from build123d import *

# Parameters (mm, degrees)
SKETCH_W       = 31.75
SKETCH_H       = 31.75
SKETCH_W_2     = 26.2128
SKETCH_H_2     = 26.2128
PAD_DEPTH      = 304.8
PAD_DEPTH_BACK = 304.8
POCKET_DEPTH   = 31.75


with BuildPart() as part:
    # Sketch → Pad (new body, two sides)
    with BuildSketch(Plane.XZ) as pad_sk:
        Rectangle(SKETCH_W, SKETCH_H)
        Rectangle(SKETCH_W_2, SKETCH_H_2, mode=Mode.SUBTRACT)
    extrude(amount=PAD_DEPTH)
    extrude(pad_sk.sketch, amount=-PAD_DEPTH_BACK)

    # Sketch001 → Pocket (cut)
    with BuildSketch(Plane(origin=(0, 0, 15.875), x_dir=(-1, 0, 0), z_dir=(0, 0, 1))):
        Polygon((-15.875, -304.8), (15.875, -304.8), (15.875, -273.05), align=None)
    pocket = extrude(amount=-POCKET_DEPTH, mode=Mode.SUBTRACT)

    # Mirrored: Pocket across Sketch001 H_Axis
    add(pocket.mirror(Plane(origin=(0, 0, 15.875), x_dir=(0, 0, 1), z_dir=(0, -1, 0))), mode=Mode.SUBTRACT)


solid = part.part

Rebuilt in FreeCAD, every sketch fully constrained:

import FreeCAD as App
import Part
import Sketcher

V = App.Vector
Q = App.Units.Quantity


def add_polygon(sketch, points):
    """Adds a closed chain of lines whose ends are joined by coincident constraints."""
    first, n = sketch.GeometryCount, len(points)
    for a, b in zip(points, points[1:] + points[:1]):
        sketch.addGeometry(Part.LineSegment(App.Vector(*a, 0), App.Vector(*b, 0)), False)
    for i in range(n):
        sketch.addConstraint(Sketcher.Constraint("Coincident", first + i, 2, first + (i + 1) % n, 1))

doc = App.newDocument("Part")
params = doc.addObject("Spreadsheet::Sheet", "Params")
for row, (alias, value) in enumerate([
    ("sketch1_width", "1.25 in"),
    ("sketch1_width2", "1.032 in"),
    ("pad1_length", "12 in"),
    ("pad1_length2", "12 in"),
    ("sketch2_width", "1.25 in"),
    ("pocket1_length", "1.25 in"),
], start=1):
    params.set(f"A{row}", alias)
    params.set(f"B{row}", "=" + value)
    params.setAlias(f"B{row}", alias)

body = doc.addObject("PartDesign::Body", "Body")

sketch1 = doc.addObject("Sketcher::SketchObject", "Sketch")
body.addObject(sketch1)
sketch1.AttachmentSupport = (doc.XZ_Plane, [""])
sketch1.MapMode = "FlatFace"
add_polygon(sketch1, [(-16, 16), (-16, -16), (16, -16), (16, 16)])
add_polygon(sketch1, [(13, -13), (-13, -13), (-13, 13), (13, 13)])
sketch1.addConstraint([
    Sketcher.Constraint("Vertical", 0),
    Sketcher.Constraint("Horizontal", 1),
    Sketcher.Constraint("Vertical", 2),
    Sketcher.Constraint("Horizontal", 3),
    Sketcher.Constraint("Horizontal", 4),
    Sketcher.Constraint("Vertical", 5),
    Sketcher.Constraint("Horizontal", 6),
    Sketcher.Constraint("Vertical", 7),
    Sketcher.Constraint("Symmetric", 0, 2, 2, 2, -1, 1),
    Sketcher.Constraint("Symmetric", 4, 2, 6, 2, -1, 1),
    Sketcher.Constraint("Equal", 3, 0),
    Sketcher.Constraint("Equal", 6, 5),
    Sketcher.Constraint("DistanceX", 1, 1, 1, 2, Q("1.25 in")),
    Sketcher.Constraint("DistanceX", 4, 2, 4, 1, Q("1.032 in")),
])
sketch1.setExpression("Constraints[20]", "Params.sketch1_width")
sketch1.setExpression("Constraints[21]", "Params.sketch1_width2")
pad1 = doc.addObject("PartDesign::Pad", "Pad")
body.addObject(pad1)
pad1.Profile = sketch1
pad1.Type = "TwoLengths"
pad1.setExpression("Length", "Params.pad1_length")
pad1.setExpression("Length2", "Params.pad1_length2")

sketch2 = doc.addObject("Sketcher::SketchObject", "Sketch001")
body.addObject(sketch2)
sketch2.AttachmentSupport = (doc.XY_Plane, [""])
sketch2.MapMode = "FlatFace"
sketch2.AttachmentOffset = App.Placement(V(0, 0, 0.625 * 25.4), App.Rotation())
add_polygon(sketch2, [(16, 305), (-16, 305), (-16, 273)])
sketch2.addConstraint([
    Sketcher.Constraint("Horizontal", 0),
    Sketcher.Constraint("Vertical", 1),
    Sketcher.Constraint("Equal", 0, 1),
    Sketcher.Constraint("DistanceY", -1, 1, 0, 2, Q("12 in")),
    Sketcher.Constraint("DistanceX", 0, 2, 0, 1, Q("1.25 in")),
    Sketcher.Constraint("DistanceX", 0, 2, -1, 1, Q("0.625 in")),
])
sketch2.setExpression("Constraints[7]", "Params.sketch2_width")
pocket1 = doc.addObject("PartDesign::Pocket", "Pocket")
body.addObject(pocket1)
pocket1.Profile = sketch2
pocket1.setExpression("Length", "Params.pocket1_length")
doc.recompute()

mirrored = doc.addObject("PartDesign::Mirrored", "Mirrored")
body.addObject(mirrored)
mirrored.Originals = [pocket1]
mirrored.MirrorPlane = (doc.XZ_Plane, [""])
body.Tip = mirrored

doc.recompute()
